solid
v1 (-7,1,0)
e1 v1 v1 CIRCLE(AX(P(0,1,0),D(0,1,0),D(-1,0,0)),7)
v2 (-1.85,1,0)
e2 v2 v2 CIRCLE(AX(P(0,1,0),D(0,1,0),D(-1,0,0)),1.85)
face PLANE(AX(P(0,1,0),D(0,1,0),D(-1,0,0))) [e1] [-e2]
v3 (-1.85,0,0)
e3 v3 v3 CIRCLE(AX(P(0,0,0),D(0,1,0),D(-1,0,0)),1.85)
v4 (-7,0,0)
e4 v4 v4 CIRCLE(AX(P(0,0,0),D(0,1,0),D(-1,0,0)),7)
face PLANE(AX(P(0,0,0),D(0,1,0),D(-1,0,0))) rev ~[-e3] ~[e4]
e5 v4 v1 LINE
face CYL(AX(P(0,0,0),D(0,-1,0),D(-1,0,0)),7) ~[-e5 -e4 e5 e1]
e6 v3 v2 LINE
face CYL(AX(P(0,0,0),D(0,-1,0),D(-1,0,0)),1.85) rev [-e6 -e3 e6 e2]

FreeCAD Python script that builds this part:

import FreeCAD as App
import Part
import Sketcher
from FreeCAD import Vector
Q = App.Units.Quantity

doc = App.newDocument("Part")
body = doc.addObject("PartDesign::Body", "Body")

sketch1 = body.newObject("Sketcher::SketchObject", "Sketch")
sketch1.AttachmentSupport = (doc.getObject("XZ_Plane"), [""])
sketch1.MapMode = "FlatFace"
sketch1.addGeometry([
    Part.Circle(Vector(0, 0, 0), Vector(0, 0, 1), 7),
    Part.Circle(Vector(0, 0, 0), Vector(0, 0, 1), 1.85),
], False)
sketch1.addConstraint([
    Sketcher.Constraint("Coincident", 0, 3, -1, 1),
    Sketcher.Constraint("Coincident", 1, 3, -1, 1),
    Sketcher.Constraint("Diameter", 0, Q("14 mm")),
    Sketcher.Constraint("Diameter", 1, Q("3.7 mm")),
])
pad1 = body.newObject("PartDesign::Pad", "Pad")
pad1.Profile = sketch1
pad1.Length = 1
pad1.Reversed = True

doc.recompute()
